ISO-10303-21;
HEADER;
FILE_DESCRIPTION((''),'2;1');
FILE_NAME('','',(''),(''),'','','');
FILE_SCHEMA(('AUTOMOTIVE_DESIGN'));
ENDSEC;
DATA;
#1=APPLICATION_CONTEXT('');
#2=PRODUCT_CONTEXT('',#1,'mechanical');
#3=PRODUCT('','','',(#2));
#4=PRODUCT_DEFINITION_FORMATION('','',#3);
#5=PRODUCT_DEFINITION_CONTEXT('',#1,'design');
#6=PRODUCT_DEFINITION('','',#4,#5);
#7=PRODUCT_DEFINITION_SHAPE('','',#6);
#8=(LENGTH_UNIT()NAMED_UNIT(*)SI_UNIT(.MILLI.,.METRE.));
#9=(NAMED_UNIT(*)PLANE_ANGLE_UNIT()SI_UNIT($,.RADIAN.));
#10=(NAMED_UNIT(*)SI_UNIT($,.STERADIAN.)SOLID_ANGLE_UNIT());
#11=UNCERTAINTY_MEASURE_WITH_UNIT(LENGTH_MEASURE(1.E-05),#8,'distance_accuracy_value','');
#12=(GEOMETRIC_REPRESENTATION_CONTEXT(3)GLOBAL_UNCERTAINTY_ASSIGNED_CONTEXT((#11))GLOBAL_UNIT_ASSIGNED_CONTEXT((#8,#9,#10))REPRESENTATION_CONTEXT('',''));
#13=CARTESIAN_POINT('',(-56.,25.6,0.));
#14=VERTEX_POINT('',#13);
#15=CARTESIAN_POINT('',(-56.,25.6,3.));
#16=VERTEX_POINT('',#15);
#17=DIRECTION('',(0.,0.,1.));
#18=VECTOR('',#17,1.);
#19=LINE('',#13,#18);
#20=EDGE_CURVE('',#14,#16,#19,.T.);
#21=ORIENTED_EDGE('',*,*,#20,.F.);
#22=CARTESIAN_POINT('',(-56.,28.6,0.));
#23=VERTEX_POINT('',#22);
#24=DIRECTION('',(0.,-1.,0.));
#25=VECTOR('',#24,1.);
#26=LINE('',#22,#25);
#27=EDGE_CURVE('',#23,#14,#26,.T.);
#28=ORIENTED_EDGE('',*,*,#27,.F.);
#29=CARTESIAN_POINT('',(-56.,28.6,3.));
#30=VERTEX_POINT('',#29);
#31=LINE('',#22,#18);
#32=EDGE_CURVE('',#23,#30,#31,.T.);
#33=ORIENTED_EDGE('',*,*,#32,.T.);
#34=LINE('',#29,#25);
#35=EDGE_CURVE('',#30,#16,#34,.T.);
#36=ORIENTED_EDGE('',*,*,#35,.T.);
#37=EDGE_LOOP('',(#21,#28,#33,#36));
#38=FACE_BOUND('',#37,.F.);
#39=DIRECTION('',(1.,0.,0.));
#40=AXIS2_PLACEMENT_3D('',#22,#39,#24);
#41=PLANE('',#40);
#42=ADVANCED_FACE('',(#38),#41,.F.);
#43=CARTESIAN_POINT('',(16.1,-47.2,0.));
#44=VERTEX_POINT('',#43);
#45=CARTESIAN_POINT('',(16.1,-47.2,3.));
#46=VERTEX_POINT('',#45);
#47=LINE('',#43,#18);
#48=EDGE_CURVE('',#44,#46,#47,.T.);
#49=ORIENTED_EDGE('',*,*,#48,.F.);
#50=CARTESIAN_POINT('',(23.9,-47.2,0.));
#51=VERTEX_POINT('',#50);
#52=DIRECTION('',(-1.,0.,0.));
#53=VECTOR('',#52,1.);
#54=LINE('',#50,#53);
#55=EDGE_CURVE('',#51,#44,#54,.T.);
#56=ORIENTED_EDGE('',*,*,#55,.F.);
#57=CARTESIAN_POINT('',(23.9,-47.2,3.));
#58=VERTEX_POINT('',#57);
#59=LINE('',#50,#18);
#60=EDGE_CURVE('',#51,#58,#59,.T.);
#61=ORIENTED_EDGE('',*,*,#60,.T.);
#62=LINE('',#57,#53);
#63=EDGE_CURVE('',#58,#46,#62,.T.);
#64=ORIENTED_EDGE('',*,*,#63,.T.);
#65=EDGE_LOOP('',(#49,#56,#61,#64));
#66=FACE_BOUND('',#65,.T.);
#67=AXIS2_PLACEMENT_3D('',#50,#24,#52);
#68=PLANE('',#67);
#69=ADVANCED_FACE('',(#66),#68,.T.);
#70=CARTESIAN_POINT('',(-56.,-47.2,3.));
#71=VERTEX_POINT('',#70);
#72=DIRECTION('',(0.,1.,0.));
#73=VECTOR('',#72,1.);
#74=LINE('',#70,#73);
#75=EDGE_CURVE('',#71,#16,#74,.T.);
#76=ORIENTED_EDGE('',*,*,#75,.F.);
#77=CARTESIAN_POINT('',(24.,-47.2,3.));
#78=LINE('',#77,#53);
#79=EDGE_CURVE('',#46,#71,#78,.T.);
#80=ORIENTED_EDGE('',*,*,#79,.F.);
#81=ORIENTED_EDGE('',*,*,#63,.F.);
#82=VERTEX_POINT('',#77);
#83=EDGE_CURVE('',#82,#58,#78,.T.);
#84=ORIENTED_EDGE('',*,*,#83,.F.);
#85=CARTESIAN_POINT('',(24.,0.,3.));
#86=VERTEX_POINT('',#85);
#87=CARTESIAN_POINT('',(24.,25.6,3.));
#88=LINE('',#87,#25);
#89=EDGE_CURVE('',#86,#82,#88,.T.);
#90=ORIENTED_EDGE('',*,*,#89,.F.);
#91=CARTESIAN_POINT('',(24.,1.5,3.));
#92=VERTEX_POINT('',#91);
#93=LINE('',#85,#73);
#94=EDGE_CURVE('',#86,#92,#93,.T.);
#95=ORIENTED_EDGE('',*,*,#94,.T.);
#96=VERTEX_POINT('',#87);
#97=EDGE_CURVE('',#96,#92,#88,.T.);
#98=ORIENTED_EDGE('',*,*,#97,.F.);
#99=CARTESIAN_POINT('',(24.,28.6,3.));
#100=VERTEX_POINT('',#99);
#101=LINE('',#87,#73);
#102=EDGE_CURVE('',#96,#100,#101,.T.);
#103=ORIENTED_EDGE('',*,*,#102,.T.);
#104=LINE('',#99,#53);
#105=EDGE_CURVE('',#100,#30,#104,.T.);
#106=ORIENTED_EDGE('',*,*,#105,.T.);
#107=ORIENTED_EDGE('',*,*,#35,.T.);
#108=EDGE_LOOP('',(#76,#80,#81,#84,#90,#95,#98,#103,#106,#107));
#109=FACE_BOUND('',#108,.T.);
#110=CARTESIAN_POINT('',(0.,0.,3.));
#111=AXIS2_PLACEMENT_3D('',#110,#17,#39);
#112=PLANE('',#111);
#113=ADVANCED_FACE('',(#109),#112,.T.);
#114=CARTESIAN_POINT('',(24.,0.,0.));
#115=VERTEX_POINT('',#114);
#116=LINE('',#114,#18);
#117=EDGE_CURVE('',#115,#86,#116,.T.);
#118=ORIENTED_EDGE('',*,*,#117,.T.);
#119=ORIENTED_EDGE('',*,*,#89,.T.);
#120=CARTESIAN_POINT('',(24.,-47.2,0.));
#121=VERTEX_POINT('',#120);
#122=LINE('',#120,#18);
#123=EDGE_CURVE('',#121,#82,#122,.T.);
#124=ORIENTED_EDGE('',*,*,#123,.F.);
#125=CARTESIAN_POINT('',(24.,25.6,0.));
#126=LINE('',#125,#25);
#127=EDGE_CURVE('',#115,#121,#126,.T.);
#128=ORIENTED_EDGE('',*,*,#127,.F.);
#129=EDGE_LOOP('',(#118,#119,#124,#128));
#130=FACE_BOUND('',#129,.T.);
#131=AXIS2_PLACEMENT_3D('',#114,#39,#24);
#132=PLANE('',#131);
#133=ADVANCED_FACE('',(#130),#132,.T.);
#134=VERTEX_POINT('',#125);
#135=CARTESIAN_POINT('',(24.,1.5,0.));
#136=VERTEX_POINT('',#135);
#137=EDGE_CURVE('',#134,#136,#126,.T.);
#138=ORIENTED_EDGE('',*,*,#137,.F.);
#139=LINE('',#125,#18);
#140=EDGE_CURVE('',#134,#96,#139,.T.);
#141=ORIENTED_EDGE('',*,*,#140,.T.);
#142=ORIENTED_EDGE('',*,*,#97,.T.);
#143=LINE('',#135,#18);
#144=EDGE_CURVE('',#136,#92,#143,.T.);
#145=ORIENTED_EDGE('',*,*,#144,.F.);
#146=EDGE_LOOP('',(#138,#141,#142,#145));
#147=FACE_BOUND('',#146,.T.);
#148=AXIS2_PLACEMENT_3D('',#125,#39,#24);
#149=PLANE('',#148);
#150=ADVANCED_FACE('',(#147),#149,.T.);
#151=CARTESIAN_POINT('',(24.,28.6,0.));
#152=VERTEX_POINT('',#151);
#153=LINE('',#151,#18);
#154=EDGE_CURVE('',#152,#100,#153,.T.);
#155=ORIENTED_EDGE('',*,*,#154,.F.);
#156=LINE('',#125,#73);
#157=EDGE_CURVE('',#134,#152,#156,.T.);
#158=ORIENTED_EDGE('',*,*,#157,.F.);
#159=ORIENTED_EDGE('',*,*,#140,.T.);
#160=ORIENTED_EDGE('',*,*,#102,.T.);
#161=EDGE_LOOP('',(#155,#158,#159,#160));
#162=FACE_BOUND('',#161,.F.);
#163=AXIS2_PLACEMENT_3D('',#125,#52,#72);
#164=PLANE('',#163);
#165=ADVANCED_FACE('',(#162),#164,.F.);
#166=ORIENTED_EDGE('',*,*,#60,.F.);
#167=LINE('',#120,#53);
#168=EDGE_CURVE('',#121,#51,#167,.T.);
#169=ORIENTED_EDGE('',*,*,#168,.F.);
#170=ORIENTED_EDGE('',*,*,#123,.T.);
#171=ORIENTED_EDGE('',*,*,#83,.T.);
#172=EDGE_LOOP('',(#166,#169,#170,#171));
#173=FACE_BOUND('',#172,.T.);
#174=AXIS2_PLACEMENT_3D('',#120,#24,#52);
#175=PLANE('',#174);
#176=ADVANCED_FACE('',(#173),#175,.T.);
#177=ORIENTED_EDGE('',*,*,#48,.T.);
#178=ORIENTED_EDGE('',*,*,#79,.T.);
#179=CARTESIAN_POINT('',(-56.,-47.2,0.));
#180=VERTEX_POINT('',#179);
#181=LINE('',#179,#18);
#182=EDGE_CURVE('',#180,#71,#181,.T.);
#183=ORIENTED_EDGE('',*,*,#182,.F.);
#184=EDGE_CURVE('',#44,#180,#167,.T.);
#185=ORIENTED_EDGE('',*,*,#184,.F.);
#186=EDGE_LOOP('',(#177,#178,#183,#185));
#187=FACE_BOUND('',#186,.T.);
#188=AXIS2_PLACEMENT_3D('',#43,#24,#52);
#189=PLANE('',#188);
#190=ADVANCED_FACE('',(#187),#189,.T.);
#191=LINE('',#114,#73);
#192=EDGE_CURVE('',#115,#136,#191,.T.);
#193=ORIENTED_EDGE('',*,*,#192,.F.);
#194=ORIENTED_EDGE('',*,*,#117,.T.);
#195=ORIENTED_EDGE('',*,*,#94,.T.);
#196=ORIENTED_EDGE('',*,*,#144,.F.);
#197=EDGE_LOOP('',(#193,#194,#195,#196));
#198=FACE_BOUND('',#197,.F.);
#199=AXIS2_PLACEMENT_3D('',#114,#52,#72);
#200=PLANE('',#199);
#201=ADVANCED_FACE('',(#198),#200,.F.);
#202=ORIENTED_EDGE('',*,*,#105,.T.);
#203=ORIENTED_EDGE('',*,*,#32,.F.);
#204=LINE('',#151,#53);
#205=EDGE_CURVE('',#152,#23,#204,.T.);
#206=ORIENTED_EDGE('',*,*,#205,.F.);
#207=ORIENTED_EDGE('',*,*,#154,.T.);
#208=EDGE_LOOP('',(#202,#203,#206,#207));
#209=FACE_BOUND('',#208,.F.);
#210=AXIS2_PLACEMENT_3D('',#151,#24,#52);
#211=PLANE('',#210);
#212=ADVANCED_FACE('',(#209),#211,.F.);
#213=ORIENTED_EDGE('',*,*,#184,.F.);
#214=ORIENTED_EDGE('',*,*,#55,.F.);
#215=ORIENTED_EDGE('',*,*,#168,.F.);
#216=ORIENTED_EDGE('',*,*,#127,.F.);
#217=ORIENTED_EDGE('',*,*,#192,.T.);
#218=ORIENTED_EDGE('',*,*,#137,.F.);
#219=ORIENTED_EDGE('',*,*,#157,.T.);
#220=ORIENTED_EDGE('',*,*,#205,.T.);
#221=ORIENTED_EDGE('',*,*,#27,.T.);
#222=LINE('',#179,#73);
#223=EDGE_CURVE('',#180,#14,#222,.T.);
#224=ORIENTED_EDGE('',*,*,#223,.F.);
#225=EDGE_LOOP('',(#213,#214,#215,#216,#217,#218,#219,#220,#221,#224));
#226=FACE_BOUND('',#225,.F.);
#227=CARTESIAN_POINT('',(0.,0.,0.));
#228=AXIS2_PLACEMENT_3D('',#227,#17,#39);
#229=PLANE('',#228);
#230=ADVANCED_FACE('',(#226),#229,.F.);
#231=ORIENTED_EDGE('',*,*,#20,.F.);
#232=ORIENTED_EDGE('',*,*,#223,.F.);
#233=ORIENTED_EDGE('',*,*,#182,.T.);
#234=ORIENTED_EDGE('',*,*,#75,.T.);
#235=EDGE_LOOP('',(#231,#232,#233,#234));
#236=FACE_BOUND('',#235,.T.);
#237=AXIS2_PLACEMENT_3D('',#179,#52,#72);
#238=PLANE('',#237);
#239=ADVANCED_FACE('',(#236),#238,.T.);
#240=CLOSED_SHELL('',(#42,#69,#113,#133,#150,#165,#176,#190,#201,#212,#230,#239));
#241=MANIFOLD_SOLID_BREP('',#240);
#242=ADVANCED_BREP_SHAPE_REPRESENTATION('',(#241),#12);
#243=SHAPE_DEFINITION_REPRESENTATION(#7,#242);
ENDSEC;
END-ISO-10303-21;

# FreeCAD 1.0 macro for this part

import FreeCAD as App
import Part
import Sketcher
from FreeCAD import Vector

doc = App.newDocument("Part")
body = doc.addObject("PartDesign::Body", "Body")

# Sketch on XY plane
sketch1 = body.newObject("Sketcher::SketchObject", "Sketch")
sketch1.AttachmentSupport = (doc.getObject("XY_Plane"), [""])
sketch1.MapMode = "FlatFace"
sketch1.addGeometry([
    Part.LineSegment(Vector(24, -47, 0), Vector(24, 29, 0)),
    Part.LineSegment(Vector(24, 29, 0), Vector(-56, 29, 0)),
    Part.LineSegment(Vector(-56, 29, 0), Vector(-56, -47, 0)),
    Part.LineSegment(Vector(-56, -47, 0), Vector(24, -47, 0)),
], False)
sketch1.addConstraint([
    Sketcher.Constraint("Coincident", 0, 2, 1, 1),
    Sketcher.Constraint("Coincident", 1, 2, 2, 1),
    Sketcher.Constraint("Coincident", 2, 2, 3, 1),
    Sketcher.Constraint("Coincident", 3, 2, 0, 1),
    Sketcher.Constraint("Vertical", 0),
    Sketcher.Constraint("Horizontal", 1),
    Sketcher.Constraint("Vertical", 2),
    Sketcher.Constraint("Horizontal", 3),
    Sketcher.Constraint("DistanceX", 1, 2, 1, 1, 80.0),
    Sketcher.Constraint("DistanceY", 0, 1, 0, 2, 75.8),
    Sketcher.Constraint("DistanceX", -1, 1, 0, 2, 24.0),
    Sketcher.Constraint("DistanceY", -1, 1, 0, 2, 28.6),
])
pad1 = body.newObject("PartDesign::Pad", "Pad")
pad1.Profile = sketch1
pad1.Length = 3

doc.recompute()
